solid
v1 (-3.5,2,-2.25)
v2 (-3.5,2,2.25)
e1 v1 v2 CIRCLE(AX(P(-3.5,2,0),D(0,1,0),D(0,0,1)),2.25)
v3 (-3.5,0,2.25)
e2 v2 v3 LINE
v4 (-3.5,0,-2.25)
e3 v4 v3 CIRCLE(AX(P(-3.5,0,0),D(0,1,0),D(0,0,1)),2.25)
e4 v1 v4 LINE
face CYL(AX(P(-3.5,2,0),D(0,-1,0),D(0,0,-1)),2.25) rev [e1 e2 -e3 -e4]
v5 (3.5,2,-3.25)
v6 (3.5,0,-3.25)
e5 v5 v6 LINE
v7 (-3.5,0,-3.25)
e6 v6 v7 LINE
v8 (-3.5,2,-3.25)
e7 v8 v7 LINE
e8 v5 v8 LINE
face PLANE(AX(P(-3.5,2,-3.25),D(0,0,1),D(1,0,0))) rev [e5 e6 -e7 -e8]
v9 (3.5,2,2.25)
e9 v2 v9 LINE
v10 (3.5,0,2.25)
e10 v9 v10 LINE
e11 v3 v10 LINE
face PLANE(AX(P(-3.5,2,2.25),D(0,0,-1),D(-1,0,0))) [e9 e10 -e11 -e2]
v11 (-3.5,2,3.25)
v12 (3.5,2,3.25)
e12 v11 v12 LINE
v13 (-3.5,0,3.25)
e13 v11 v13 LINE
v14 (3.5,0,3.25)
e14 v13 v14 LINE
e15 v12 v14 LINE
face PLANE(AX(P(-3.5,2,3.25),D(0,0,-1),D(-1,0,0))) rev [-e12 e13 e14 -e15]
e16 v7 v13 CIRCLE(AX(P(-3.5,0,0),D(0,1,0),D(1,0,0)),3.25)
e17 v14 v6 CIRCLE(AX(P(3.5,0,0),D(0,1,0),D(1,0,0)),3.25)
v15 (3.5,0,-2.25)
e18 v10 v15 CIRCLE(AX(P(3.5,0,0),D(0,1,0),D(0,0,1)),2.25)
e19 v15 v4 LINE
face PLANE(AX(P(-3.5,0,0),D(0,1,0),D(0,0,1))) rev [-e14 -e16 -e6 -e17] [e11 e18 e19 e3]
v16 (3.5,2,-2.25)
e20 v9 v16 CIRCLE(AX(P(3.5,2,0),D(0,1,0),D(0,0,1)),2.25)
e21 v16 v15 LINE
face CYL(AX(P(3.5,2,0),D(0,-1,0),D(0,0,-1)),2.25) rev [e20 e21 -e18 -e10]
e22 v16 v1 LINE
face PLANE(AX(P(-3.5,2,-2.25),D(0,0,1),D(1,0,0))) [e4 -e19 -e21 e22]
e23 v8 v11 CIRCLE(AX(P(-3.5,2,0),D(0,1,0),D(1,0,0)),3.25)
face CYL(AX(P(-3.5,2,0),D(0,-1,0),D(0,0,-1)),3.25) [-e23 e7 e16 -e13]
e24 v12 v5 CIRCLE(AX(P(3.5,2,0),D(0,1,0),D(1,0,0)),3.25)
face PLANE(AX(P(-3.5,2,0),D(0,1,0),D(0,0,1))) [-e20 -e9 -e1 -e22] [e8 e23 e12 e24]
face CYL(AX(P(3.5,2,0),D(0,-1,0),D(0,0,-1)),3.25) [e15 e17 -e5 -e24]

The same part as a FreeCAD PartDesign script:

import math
import FreeCAD as App
import Part
import Sketcher

V = App.Vector

doc = App.newDocument("Part")
params = doc.addObject("Spreadsheet::Sheet", "Params")
for row, (alias, value) in enumerate([
    ("sketch1_width", "7 mm"),
    ("sketch1_radius", "3.25 mm"),
    ("sketch1_radius2", "2.25 mm"),
    ("pad1_length", "2 mm"),
], start=1):
    params.set(f"A{row}", alias)
    params.set(f"B{row}", "=" + value)
    params.setAlias(f"B{row}", alias)

body = doc.addObject("PartDesign::Body", "Body")

# Sketch on XZ plane
sketch1 = body.newObject("Sketcher::SketchObject", "Sketch")
sketch1.AttachmentSupport = (doc.getObject("XZ_Plane"), [""])
sketch1.MapMode = "FlatFace"
sketch1.addGeometry([
    Part.LineSegment(V(-3.5, 3.2, 0), V(3.5, 3.2, 0)),  # 0
    Part.ArcOfCircle(Part.Circle(V(3.5, 0, 0), V(0, 0, 1), 3.2), math.radians(-90), math.radians(90)),  # 1
    Part.LineSegment(V(3.5, -3.2, 0), V(-3.5, -3.2, 0)),  # 2
    Part.ArcOfCircle(Part.Circle(V(-3.5, 0, 0), V(0, 0, 1), 3.2), math.radians(90), math.radians(270)),  # 3
    Part.LineSegment(V(3.5, 2.2, 0), V(-3.5, 2.2, 0)),  # 4
    Part.ArcOfCircle(Part.Circle(V(-3.5, 0, 0), V(0, 0, 1), 2.2), math.radians(90), math.radians(270)),  # 5
    Part.LineSegment(V(-3.5, -2.2, 0), V(3.5, -2.2, 0)),  # 6
    Part.ArcOfCircle(Part.Circle(V(3.5, 0, 0), V(0, 0, 1), 2.2), math.radians(-90), math.radians(90)),  # 7
], False)
sketch1.addConstraint([
    Sketcher.Constraint("Tangent", 0, 2, 1, 2),
    Sketcher.Constraint("Tangent", 1, 1, 2, 1),
    Sketcher.Constraint("Tangent", 2, 2, 3, 2),
    Sketcher.Constraint("Tangent", 3, 1, 0, 1),
    Sketcher.Constraint("Tangent", 4, 2, 5, 1),
    Sketcher.Constraint("Tangent", 5, 2, 6, 1),
    Sketcher.Constraint("Tangent", 6, 2, 7, 1),
    Sketcher.Constraint("Tangent", 7, 2, 4, 1),
    Sketcher.Constraint("Horizontal", 0),
    Sketcher.Constraint("Horizontal", 2),
    Sketcher.Constraint("Horizontal", 4),
    Sketcher.Constraint("Horizontal", 6),
    Sketcher.Constraint("Coincident", 5, 3, 3, 3),
    Sketcher.Constraint("Symmetric", 1, 3, 3, 3, -1, 1),
    Sketcher.Constraint("Vertical", 7, 3, 0, 2),
    Sketcher.Constraint("DistanceX", 0, 1, 0, 2, 7.0),
    Sketcher.Constraint("Radius", 1, 3.25),
    Sketcher.Constraint("Radius", 5, 2.25),
])
sketch1.setExpression("Constraints[15]", "Params.sketch1_width")
sketch1.setExpression("Constraints[16]", "Params.sketch1_radius")
sketch1.setExpression("Constraints[17]", "Params.sketch1_radius2")
pad1 = body.newObject("PartDesign::Pad", "Pad")
pad1.Profile = sketch1
pad1.setExpression("Length", "Params.pad1_length")
pad1.Reversed = True

doc.recompute()
